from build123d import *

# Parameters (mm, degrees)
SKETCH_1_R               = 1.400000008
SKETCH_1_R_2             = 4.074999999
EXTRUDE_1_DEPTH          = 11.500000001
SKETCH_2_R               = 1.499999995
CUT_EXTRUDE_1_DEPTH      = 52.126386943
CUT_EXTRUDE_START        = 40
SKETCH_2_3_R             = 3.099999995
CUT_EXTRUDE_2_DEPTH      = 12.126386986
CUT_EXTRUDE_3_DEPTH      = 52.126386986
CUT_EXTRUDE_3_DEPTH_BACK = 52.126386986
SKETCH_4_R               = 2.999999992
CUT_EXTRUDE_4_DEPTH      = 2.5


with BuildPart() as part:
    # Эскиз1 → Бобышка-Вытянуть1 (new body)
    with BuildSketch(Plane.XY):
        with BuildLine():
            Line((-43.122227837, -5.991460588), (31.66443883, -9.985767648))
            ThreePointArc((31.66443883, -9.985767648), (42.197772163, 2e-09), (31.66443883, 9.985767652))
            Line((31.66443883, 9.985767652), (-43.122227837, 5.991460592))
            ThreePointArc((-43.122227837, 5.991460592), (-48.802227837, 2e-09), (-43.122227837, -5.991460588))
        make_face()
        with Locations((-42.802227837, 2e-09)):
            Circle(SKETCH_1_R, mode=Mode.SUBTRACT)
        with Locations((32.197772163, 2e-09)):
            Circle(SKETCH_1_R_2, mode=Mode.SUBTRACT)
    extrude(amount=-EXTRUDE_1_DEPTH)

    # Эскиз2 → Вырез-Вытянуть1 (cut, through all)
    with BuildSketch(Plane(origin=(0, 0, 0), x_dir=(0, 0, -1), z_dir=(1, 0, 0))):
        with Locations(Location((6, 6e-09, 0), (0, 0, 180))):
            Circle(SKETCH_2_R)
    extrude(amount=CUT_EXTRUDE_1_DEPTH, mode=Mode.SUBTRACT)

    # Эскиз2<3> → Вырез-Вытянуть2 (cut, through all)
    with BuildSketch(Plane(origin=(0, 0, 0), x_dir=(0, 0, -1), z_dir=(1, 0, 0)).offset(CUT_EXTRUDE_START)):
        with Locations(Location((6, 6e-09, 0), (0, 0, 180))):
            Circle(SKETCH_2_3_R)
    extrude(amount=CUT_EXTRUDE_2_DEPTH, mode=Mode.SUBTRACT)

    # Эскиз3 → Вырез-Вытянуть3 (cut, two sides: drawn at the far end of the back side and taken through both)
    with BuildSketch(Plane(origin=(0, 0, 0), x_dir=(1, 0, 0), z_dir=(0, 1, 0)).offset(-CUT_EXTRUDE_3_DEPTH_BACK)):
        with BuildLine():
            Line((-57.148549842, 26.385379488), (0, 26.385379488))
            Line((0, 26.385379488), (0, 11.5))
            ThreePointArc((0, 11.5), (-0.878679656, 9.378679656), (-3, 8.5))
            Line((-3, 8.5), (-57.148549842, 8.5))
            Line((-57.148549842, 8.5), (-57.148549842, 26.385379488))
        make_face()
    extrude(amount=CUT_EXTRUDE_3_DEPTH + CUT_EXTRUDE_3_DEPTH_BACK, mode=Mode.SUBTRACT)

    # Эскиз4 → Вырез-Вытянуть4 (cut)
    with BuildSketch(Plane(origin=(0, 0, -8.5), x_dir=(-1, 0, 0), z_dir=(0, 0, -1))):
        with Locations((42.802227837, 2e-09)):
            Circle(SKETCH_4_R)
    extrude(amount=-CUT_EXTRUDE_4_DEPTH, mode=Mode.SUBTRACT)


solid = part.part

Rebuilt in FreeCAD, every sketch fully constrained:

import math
import FreeCAD as App
import Part
import Sketcher
Q = App.Units.Quantity

doc = App.newDocument("Part")
body = doc.addObject("PartDesign::Body", "Body")

# Sketch on XY plane
sketch1 = body.newObject("Sketcher::SketchObject", "Sketch")
sketch1.AttachmentSupport = (doc.getObject("XY_Plane"), [""])
sketch1.MapMode = "FlatFace"
sketch1.addGeometry(Part.LineSegment(App.Vector(-43.1, -6, 0), App.Vector(31.7, -10, 0)), False)
sketch1.addGeometry(Part.ArcOfCircle(Part.Circle(App.Vector(32.2, 0, 0), App.Vector(0, 0, 1), 10), math.radians(-93), math.radians(93)), False)
sketch1.addGeometry(Part.LineSegment(App.Vector(31.7, 10, 0), App.Vector(-43.1, 6, 0)), False)
sketch1.addGeometry(Part.ArcOfCircle(Part.Circle(App.Vector(-42.8, 0, 0), App.Vector(0, 0, 1), 6), math.radians(93), math.radians(267)), False)
sketch1.addGeometry(Part.Circle(App.Vector(-42.8, 0, 0), App.Vector(0, 0, 1), 1.4), False)
sketch1.addGeometry(Part.Circle(App.Vector(32.2, 0, 0), App.Vector(0, 0, 1), 4.1), False)
sketch1.addConstraint(Sketcher.Constraint("Tangent", 0, 2, 1, 1))
sketch1.addConstraint(Sketcher.Constraint("Tangent", 1, 2, 2, 1))
sketch1.addConstraint(Sketcher.Constraint("Tangent", 2, 2, 3, 1))
sketch1.addConstraint(Sketcher.Constraint("Tangent", 3, 2, 0, 1))
sketch1.addConstraint(Sketcher.Constraint("Coincident", 4, 3, 3, 3))
sketch1.addConstraint(Sketcher.Constraint("Coincident", 5, 3, 1, 3))
sketch1.addConstraint(Sketcher.Constraint("Symmetric", 0, 2, 1, 2, -1))
sketch1.addConstraint(Sketcher.Constraint("Radius", 1, Q("10 mm")))
sketch1.addConstraint(Sketcher.Constraint("Radius", 3, Q("6 mm")))
sketch1.addConstraint(Sketcher.Constraint("Diameter", 4, Q("2.8 mm")))
sketch1.addConstraint(Sketcher.Constraint("Diameter", 5, Q("8.15 mm")))
sketch1.addConstraint(Sketcher.Constraint("DistanceX", 3, 3, 1, 3, Q("75 mm")))
sketch1.addConstraint(Sketcher.Constraint("DistanceX", -1, 1, 0, 2, Q("31.664439 mm")))
pad1 = body.newObject("PartDesign::Pad", "Pad")
pad1.Profile = sketch1
pad1.Length = 11.5
pad1.Reversed = True

# Sketch on YZ plane
sketch2 = body.newObject("Sketcher::SketchObject", "Sketch001")
sketch2.AttachmentSupport = (doc.getObject("YZ_Plane"), [""])
sketch2.MapMode = "FlatFace"
sketch2.addGeometry(Part.Circle(App.Vector(0, -6, 0), App.Vector(0, 0, 1), 1.5), False)
sketch2.addConstraint(Sketcher.Constraint("PointOnObject", 0, 3, -2))
sketch2.addConstraint(Sketcher.Constraint("Diameter", 0, Q("3 mm")))
sketch2.addConstraint(Sketcher.Constraint("DistanceY", 0, 3, -1, 1, Q("6 mm")))
pocket1 = body.newObject("PartDesign::Pocket", "Pocket")
pocket1.Profile = sketch2
pocket1.Type = "ThroughAll"
pocket1.Reversed = True

# Sketch on YZ plane
sketch3 = body.newObject("Sketcher::SketchObject", "Sketch002")
sketch3.AttachmentSupport = (doc.getObject("YZ_Plane"), [""])
sketch3.MapMode = "FlatFace"
sketch3.AttachmentOffset = App.Placement(App.Vector(0, 0, 40), App.Rotation())
sketch3.addGeometry(Part.Circle(App.Vector(0, -6, 0), App.Vector(0, 0, 1), 3.1), False)
sketch3.addConstraint(Sketcher.Constraint("PointOnObject", 0, 3, -2))
sketch3.addConstraint(Sketcher.Constraint("Diameter", 0, Q("6.2 mm")))
sketch3.addConstraint(Sketcher.Constraint("DistanceY", 0, 3, -1, 1, Q("6 mm")))
pocket2 = body.newObject("PartDesign::Pocket", "Pocket001")
pocket2.Profile = sketch3
pocket2.Type = "ThroughAll"
pocket2.Reversed = True

# Sketch on XZ plane
sketch4 = body.newObject("Sketcher::SketchObject", "Sketch003")
sketch4.AttachmentSupport = (doc.getObject("XZ_Plane"), [""])
sketch4.MapMode = "FlatFace"
sketch4.addGeometry(Part.LineSegment(App.Vector(0, -26.4, 0), App.Vector(-57.1, -26.4, 0)), False)
sketch4.addGeometry(Part.LineSegment(App.Vector(-57.1, -26.4, 0), App.Vector(-57.1, -8.5, 0)), False)
sketch4.addGeometry(Part.LineSegment(App.Vector(-57.1, -8.5, 0), App.Vector(-3, -8.5, 0)), False)
sketch4.addGeometry(Part.ArcOfCircle(Part.Circle(App.Vector(-3, -11.5, 0), App.Vector(0, 0, 1), 3), math.radians(0), math.radians(90)), False)
sketch4.addGeometry(Part.LineSegment(App.Vector(0, -11.5, 0), App.Vector(0, -26.4, 0)), False)
sketch4.addConstraint(Sketcher.Constraint("Coincident", 0, 2, 1, 1))
sketch4.addConstraint(Sketcher.Constraint("Coincident", 1, 2, 2, 1))
sketch4.addConstraint(Sketcher.Constraint("Tangent", 2, 2, 3, 2))
sketch4.addConstraint(Sketcher.Constraint("Tangent", 3, 1, 4, 1))
sketch4.addConstraint(Sketcher.Constraint("Coincident", 4, 2, 0, 1))
sketch4.addConstraint(Sketcher.Constraint("Horizontal", 0))
sketch4.addConstraint(Sketcher.Constraint("Vertical", 1))
sketch4.addConstraint(Sketcher.Constraint("Horizontal", 2))
sketch4.addConstraint(Sketcher.Constraint("Vertical", 4))
sketch4.addConstraint(Sketcher.Constraint("PointOnObject", 3, 1, -2))
sketch4.addConstraint(Sketcher.Constraint("Radius", 3, Q("3 mm")))
sketch4.addConstraint(Sketcher.Constraint("DistanceY", 3, 3, -1, 1, Q("11.5 mm")))
sketch4.addConstraint(Sketcher.Constraint("DistanceX", 0, 2, 0, 1, Q("57.14855 mm")))
sketch4.addConstraint(Sketcher.Constraint("DistanceY", 1, 1, 1, 2, Q("17.885379 mm")))
pocket3 = body.newObject("PartDesign::Pocket", "Pocket002")
pocket3.Profile = sketch4
pocket3.Type = "ThroughAll"
pocket3.Midplane = True

# Sketch on XY plane
sketch5 = body.newObject("Sketcher::SketchObject", "Sketch004")
sketch5.AttachmentSupport = (doc.getObject("XY_Plane"), [""])
sketch5.MapMode = "FlatFace"
sketch5.AttachmentOffset = App.Placement(App.Vector(0, 0, -8.5), App.Rotation())
sketch5.addGeometry(Part.Circle(App.Vector(-42.8, 0, 0), App.Vector(0, 0, 1), 3), False)
sketch5.addConstraint(Sketcher.Constraint("PointOnObject", 0, 3, -1))
sketch5.addConstraint(Sketcher.Constraint("Diameter", 0, Q("6 mm")))
sketch5.addConstraint(Sketcher.Constraint("DistanceX", 0, 3, -1, 1, Q("42.802228 mm")))
pocket4 = body.newObject("PartDesign::Pocket", "Pocket003")
pocket4.Profile = sketch5
pocket4.Length = 2.5
pocket4.Reversed = True

doc.recompute()
